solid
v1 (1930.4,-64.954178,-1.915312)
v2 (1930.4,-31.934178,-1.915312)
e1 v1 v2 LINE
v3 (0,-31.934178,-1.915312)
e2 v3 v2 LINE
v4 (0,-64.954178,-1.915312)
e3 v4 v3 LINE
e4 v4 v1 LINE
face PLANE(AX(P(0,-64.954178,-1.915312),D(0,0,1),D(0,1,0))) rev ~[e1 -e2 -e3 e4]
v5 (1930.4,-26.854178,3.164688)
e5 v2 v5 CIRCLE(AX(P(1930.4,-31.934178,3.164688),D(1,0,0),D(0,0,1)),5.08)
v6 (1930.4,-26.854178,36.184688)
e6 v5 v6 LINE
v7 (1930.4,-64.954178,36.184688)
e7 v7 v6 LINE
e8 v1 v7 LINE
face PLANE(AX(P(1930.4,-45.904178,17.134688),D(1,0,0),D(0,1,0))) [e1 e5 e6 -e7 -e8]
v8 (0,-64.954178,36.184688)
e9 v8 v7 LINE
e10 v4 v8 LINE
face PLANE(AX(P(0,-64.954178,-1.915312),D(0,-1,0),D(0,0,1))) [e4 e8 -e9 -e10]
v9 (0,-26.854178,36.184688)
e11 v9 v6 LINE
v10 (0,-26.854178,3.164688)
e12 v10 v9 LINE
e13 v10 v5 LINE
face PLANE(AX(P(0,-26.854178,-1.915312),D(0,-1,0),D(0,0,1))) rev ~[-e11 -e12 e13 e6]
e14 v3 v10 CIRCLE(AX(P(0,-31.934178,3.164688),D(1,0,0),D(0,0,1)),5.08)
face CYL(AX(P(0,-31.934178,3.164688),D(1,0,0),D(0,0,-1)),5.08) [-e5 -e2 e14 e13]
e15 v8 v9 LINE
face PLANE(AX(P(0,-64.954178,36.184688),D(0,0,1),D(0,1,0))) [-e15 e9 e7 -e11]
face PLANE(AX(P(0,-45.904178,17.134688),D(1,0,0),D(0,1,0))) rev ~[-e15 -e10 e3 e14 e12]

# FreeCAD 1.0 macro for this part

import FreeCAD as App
import Part
import Sketcher
from FreeCAD import Vector
Q = App.Units.Quantity


def edges_at(feature, points):
    """Names of the edges that pass closest to the given points."""
    edges = feature.Shape.Edges
    near = lambda p: min(range(len(edges)), key=lambda i: edges[i].distToShape(Part.Vertex(*p))[0])
    return sorted({f"Edge{near(p) + 1}" for p in points})

doc = App.newDocument("Part")
body = doc.addObject("PartDesign::Body", "Body")

# Sketch on YZ plane
sketch1 = body.newObject("Sketcher::SketchObject", "Sketch")
sketch1.AttachmentSupport = (doc.getObject("YZ_Plane"), [""])
sketch1.MapMode = "FlatFace"
sketch1.addGeometry(Part.LineSegment(Vector(-65, 36, 0), Vector(-65, -2, 0)), False)
sketch1.addGeometry(Part.LineSegment(Vector(-65, -2, 0), Vector(-27, -2, 0)), False)
sketch1.addGeometry(Part.LineSegment(Vector(-27, -2, 0), Vector(-27, 36, 0)), False)
sketch1.addGeometry(Part.LineSegment(Vector(-27, 36, 0), Vector(-65, 36, 0)), False)
sketch1.addConstraint(Sketcher.Constraint("Coincident", 0, 2, 1, 1))
sketch1.addConstraint(Sketcher.Constraint("Coincident", 1, 2, 2, 1))
sketch1.addConstraint(Sketcher.Constraint("Coincident", 2, 2, 3, 1))
sketch1.addConstraint(Sketcher.Constraint("Coincident", 3, 2, 0, 1))
sketch1.addConstraint(Sketcher.Constraint("Vertical", 0))
sketch1.addConstraint(Sketcher.Constraint("Horizontal", 1))
sketch1.addConstraint(Sketcher.Constraint("Vertical", 2))
sketch1.addConstraint(Sketcher.Constraint("Horizontal", 3))
sketch1.addConstraint(Sketcher.Constraint("Equal", 3, 0))
sketch1.addConstraint(Sketcher.Constraint("DistanceX", 1, 1, 1, 2, Q("1.5 in")))
sketch1.addConstraint(Sketcher.Constraint("DistanceX", 0, 2, -1, 1, Q("64.954178 mm")))
sketch1.addConstraint(Sketcher.Constraint("DistanceY", 0, 2, -1, 1, Q("1.915312 mm")))
pad1 = body.newObject("PartDesign::Pad", "Pad")
pad1.Profile = sketch1
pad1.Length = Q("76 in")
doc.recompute()

fillet = body.newObject("PartDesign::Fillet", "Fillet")
fillet.Base = (pad1, edges_at(pad1, [(965.2, -26.854, -1.915)]))
fillet.Radius = Q("0.2 in")

doc.recompute()
